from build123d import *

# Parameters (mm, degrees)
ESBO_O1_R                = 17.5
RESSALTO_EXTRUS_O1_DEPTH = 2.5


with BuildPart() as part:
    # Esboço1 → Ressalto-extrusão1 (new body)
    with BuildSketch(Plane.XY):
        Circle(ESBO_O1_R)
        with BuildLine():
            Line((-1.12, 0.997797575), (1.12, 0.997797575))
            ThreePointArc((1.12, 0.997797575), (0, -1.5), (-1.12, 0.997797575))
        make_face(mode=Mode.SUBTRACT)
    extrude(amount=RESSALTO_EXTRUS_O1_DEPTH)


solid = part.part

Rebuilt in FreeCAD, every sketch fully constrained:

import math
import FreeCAD as App
import Part
import Sketcher

V = App.Vector
Q = App.Units.Quantity

doc = App.newDocument("Part")
body = doc.addObject("PartDesign::Body", "Body")

# Sketch on XY plane
sketch1 = body.newObject("Sketcher::SketchObject", "Sketch")
sketch1.AttachmentSupport = (doc.getObject("XY_Plane"), [""])
sketch1.MapMode = "FlatFace"
sketch1.addGeometry(Part.Circle(V(0, 0, 0), V(0, 0, 1), 17.5), False)
sketch1.addGeometry(Part.ArcOfCircle(Part.Circle(V(0, 0, 0), V(0, 0, 1), 1.5), math.radians(138), math.radians(402)), False)
sketch1.addGeometry(Part.LineSegment(V(-1.1, 1, 0), V(1.1, 1, 0)), False)
sketch1.addConstraint(Sketcher.Constraint("Coincident", 1, 1, 2, 1))
sketch1.addConstraint(Sketcher.Constraint("Coincident", 2, 2, 1, 2))
sketch1.addConstraint(Sketcher.Constraint("Horizontal", 2))
sketch1.addConstraint(Sketcher.Constraint("Coincident", 0, 3, -1, 1))
sketch1.addConstraint(Sketcher.Constraint("Coincident", 1, 3, -1, 1))
sketch1.addConstraint(Sketcher.Constraint("Diameter", 0, Q("35 mm")))
sketch1.addConstraint(Sketcher.Constraint("Radius", 1, Q("1.5 mm")))
sketch1.addConstraint(Sketcher.Constraint("DistanceX", 2, 1, 2, 2, Q("2.24 mm")))
pad1 = body.newObject("PartDesign::Pad", "Pad")
pad1.Profile = sketch1
pad1.Length = 2.5

doc.recompute()
